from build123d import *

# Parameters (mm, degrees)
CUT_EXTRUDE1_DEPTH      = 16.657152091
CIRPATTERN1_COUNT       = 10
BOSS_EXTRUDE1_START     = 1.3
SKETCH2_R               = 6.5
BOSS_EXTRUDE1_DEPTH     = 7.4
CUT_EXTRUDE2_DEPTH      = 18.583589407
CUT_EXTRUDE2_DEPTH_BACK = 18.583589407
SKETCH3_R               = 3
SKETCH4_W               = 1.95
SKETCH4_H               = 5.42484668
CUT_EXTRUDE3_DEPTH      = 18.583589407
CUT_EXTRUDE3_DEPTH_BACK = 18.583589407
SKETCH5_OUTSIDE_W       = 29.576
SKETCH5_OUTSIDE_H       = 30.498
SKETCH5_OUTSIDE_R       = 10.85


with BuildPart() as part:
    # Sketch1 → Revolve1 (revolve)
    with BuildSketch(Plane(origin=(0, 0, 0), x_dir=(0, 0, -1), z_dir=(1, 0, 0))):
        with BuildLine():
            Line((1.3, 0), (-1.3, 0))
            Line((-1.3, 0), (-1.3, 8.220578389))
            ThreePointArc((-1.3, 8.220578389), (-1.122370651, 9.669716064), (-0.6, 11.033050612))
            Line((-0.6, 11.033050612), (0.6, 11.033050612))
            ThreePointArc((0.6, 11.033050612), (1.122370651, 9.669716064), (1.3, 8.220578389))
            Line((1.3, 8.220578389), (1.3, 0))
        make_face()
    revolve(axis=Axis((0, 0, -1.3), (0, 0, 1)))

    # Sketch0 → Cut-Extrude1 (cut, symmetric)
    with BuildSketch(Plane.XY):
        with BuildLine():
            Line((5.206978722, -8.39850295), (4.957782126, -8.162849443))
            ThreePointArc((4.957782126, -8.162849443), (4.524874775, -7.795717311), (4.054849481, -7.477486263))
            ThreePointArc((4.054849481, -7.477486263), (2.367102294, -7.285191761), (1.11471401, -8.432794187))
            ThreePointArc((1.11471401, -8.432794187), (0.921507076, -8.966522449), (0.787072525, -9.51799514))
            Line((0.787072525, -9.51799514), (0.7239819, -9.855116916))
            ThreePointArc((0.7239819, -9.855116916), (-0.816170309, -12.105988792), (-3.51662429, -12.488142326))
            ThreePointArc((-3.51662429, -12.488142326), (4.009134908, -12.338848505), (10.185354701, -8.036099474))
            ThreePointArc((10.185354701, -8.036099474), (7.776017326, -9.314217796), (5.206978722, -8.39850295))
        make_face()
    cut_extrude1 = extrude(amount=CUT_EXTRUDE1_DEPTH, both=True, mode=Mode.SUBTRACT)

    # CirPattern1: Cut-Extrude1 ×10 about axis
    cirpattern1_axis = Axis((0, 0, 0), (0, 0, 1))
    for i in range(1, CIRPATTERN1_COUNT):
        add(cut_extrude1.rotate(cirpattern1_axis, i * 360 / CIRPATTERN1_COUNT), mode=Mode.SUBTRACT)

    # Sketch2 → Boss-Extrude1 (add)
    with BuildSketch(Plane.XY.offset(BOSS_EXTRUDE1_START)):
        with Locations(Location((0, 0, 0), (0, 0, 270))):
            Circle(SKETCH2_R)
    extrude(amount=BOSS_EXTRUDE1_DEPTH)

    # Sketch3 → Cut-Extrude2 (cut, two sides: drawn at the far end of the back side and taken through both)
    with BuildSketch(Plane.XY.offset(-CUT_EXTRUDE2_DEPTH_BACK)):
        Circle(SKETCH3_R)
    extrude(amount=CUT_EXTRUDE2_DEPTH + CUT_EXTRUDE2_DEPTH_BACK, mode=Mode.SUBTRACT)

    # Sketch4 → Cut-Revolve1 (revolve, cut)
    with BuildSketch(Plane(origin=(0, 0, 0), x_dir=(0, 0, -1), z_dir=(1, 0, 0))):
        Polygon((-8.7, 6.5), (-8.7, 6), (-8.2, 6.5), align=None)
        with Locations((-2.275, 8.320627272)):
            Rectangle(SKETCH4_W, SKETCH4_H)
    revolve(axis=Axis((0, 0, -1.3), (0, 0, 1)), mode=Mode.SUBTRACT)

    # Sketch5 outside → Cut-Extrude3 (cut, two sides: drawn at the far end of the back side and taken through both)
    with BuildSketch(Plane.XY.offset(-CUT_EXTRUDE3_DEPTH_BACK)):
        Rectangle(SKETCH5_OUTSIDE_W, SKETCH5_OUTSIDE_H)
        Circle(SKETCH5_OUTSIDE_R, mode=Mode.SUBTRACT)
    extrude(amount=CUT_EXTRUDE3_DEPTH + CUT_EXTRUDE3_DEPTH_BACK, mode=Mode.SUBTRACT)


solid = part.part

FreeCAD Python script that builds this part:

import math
import FreeCAD as App
import Part
import Sketcher
Q = App.Units.Quantity

doc = App.newDocument("Part")
body = doc.addObject("PartDesign::Body", "Body")

sketch1 = body.newObject("Sketcher::SketchObject", "Sketch")
sketch1.AttachmentSupport = (doc.getObject("YZ_Plane"), [""])
sketch1.MapMode = "FlatFace"
sketch1.addGeometry(Part.LineSegment(App.Vector(0, 1.3, 0), App.Vector(0, -1.3, 0)), False)
sketch1.addGeometry(Part.LineSegment(App.Vector(0, -1.3, 0), App.Vector(8.220578, -1.3, 0)), False)
sketch1.addGeometry(Part.ArcOfCircle(Part.Circle(App.Vector(8.220578, 4.7, 0), App.Vector(0, 0, 1), 6), math.radians(-90), math.radians(-62.047113)), False)
sketch1.addGeometry(Part.LineSegment(App.Vector(11.033051, -0.6, 0), App.Vector(11.033051, 0.6, 0)), False)
sketch1.addGeometry(Part.ArcOfCircle(Part.Circle(App.Vector(8.220578, -4.7, 0), App.Vector(0, 0, 1), 6), math.radians(62.047113), math.radians(90)), False)
sketch1.addGeometry(Part.LineSegment(App.Vector(8.220578, 1.3, 0), App.Vector(0, 1.3, 0)), False)
sketch1.addConstraint(Sketcher.Constraint("Coincident", 0, 2, 1, 1))
sketch1.addConstraint(Sketcher.Constraint("Tangent", 1, 2, 2, 1))
sketch1.addConstraint(Sketcher.Constraint("Coincident", 2, 2, 3, 1))
sketch1.addConstraint(Sketcher.Constraint("Coincident", 3, 2, 4, 1))
sketch1.addConstraint(Sketcher.Constraint("Tangent", 4, 2, 5, 1))
sketch1.addConstraint(Sketcher.Constraint("Coincident", 5, 2, 0, 1))
sketch1.addConstraint(Sketcher.Constraint("Vertical", 0))
sketch1.addConstraint(Sketcher.Constraint("Horizontal", 1))
sketch1.addConstraint(Sketcher.Constraint("Vertical", 3))
sketch1.addConstraint(Sketcher.Constraint("Horizontal", 5))
sketch1.addConstraint(Sketcher.Constraint("Equal", 2, 4))
sketch1.addConstraint(Sketcher.Constraint("Symmetric", 0, 2, 5, 2, -1, 1))
sketch1.addConstraint(Sketcher.Constraint("Vertical", 2, 3, 4, 3))
sketch1.addConstraint(Sketcher.Constraint("Radius", 2, 6.0))
sketch1.addConstraint(Sketcher.Constraint("DistanceY", 0, 2, 0, 1, 2.6))
sketch1.addConstraint(Sketcher.Constraint("DistanceY", 3, 1, 3, 2, 1.2))
sketch1.addConstraint(Sketcher.Constraint("DistanceX", 1, 1, 1, 2, 8.220578))
revolution = body.newObject("PartDesign::Revolution", "Revolution")
revolution.Profile = sketch1
revolution.ReferenceAxis = (sketch1, ["V_Axis"])
revolution.Angle = 360

sketch2 = body.newObject("Sketcher::SketchObject", "Sketch001")
sketch2.AttachmentSupport = (doc.getObject("XY_Plane"), [""])
sketch2.MapMode = "FlatFace"
sketch2.addGeometry(Part.LineSegment(App.Vector(5.206979, -8.398503, 0), App.Vector(4.957782, -8.162849, 0)), False)
sketch2.addGeometry(Part.ArcOfCircle(Part.Circle(App.Vector(1.351878, -11.975986, 0), App.Vector(0, 0, 1), 5.2481), math.radians(46.6), math.radians(59)), False)
sketch2.addGeometry(Part.ArcOfCircle(Part.Circle(App.Vector(3, -9.233051, 0), App.Vector(0, 0, 1), 2.0481), math.radians(59), math.radians(157)), False)
sketch2.addGeometry(Part.ArcOfCircle(Part.Circle(App.Vector(5.945616, -10.48339, 0), App.Vector(0, 0, 1), 5.2481), math.radians(157), math.radians(169.4)), False)
sketch2.addGeometry(Part.LineSegment(App.Vector(0.787073, -9.517995, 0), App.Vector(0.723982, -9.855117, 0)), False)
sketch2.addGeometry(Part.ArcOfCircle(Part.Circle(App.Vector(-2.6, -9.233051, 0), App.Vector(0, 0, 1), 3.381689), math.radians(-105.727064), math.radians(-10.6)), False)
sketch2.addGeometry(Part.ArcOfCircle(Part.Circle(App.Vector(0, 0, 0), App.Vector(0, 0, 1), 12.973833), math.radians(-105.727064), math.radians(-38.272936)), False)
sketch2.addGeometry(Part.ArcOfCircle(Part.Circle(App.Vector(7.530495, -5.941453, 0), App.Vector(0, 0, 1), 3.381689), math.radians(-133.4), math.radians(-38.272936)), False)
sketch2.addConstraint(Sketcher.Constraint("Tangent", 0, 2, 1, 1))
sketch2.addConstraint(Sketcher.Constraint("Tangent", 1, 2, 2, 1))
sketch2.addConstraint(Sketcher.Constraint("Tangent", 2, 2, 3, 1))
sketch2.addConstraint(Sketcher.Constraint("Tangent", 3, 2, 4, 1))
sketch2.addConstraint(Sketcher.Constraint("Tangent", 4, 2, 5, 2))
sketch2.addConstraint(Sketcher.Constraint("Tangent", 5, 1, 6, 1))
sketch2.addConstraint(Sketcher.Constraint("Tangent", 6, 2, 7, 2))
sketch2.addConstraint(Sketcher.Constraint("Tangent", 7, 1, 0, 1))
sketch2.addConstraint(Sketcher.Constraint("Coincident", 6, 3, -1, 1))
sketch2.addConstraint(Sketcher.Constraint("Equal", 1, 3))
sketch2.addConstraint(Sketcher.Constraint("Equal", 5, 7))
sketch2.addConstraint(Sketcher.Constraint("Horizontal", 2, 3, 5, 3))
sketch2.addConstraint(Sketcher.Constraint("Equal", 0, 4))
sketch2.addConstraint(Sketcher.Constraint("DistanceX", -1, 1, 2, 3, 3.0))
sketch2.addConstraint(Sketcher.Constraint("Angle", 0, Q("136.6 deg")))
sketch2.addConstraint(Sketcher.Constraint("Angle", 4, Q("-100.6 deg")))
sketch2.addConstraint(Sketcher.Constraint("DistanceX", 5, 3, -1, 1, 2.6))
sketch2.addConstraint(Sketcher.Constraint("Radius", 1, 5.2481))
sketch2.addConstraint(Sketcher.Constraint("Radius", 2, 2.0481))
sketch2.addConstraint(Sketcher.Constraint("Radius", 5, 3.381689))
sketch2.addConstraint(Sketcher.Constraint("Radius", 6, 12.973833))
pocket1 = body.newObject("PartDesign::Pocket", "Pocket")
pocket1.Profile = sketch2
pocket1.Length = 33.314304
pocket1.Midplane = True
doc.recompute()

polarpattern = body.newObject("PartDesign::PolarPattern", "PolarPattern")
polarpattern.Originals = [pocket1]
polarpattern.Axis = (doc.getObject("Z_Axis"), [""])
polarpattern.Angle = 360
polarpattern.Occurrences = 10
body.Tip = polarpattern

sketch3 = body.newObject("Sketcher::SketchObject", "Sketch002")
sketch3.AttachmentSupport = (doc.getObject("XY_Plane"), [""])
sketch3.MapMode = "FlatFace"
sketch3.AttachmentOffset = App.Placement(App.Vector(0, 0, 1.3), App.Rotation())
sketch3.addGeometry(Part.Circle(App.Vector(0, 0, 0), App.Vector(0, 0, 1), 6.5), False)
sketch3.addConstraint(Sketcher.Constraint("Coincident", 0, 3, -1, 1))
sketch3.addConstraint(Sketcher.Constraint("Diameter", 0, 13.0))
pad1 = body.newObject("PartDesign::Pad", "Pad")
pad1.Profile = sketch3
pad1.Length = 7.4

sketch4 = body.newObject("Sketcher::SketchObject", "Sketch003")
sketch4.AttachmentSupport = (doc.getObject("XY_Plane"), [""])
sketch4.MapMode = "FlatFace"
sketch4.addGeometry(Part.Circle(App.Vector(0, 0, 0), App.Vector(0, 0, 1), 3), False)
sketch4.addConstraint(Sketcher.Constraint("Coincident", 0, 3, -1, 1))
sketch4.addConstraint(Sketcher.Constraint("Diameter", 0, 6.0))
pocket2 = body.newObject("PartDesign::Pocket", "Pocket001")
pocket2.Profile = sketch4
pocket2.Type = "ThroughAll"
pocket2.Midplane = True

sketch5 = body.newObject("Sketcher::SketchObject", "Sketch004")
sketch5.AttachmentSupport = (doc.getObject("YZ_Plane"), [""])
sketch5.MapMode = "FlatFace"
sketch5.addGeometry(Part.LineSegment(App.Vector(6.5, 8.7, 0), App.Vector(6, 8.7, 0)), False)
sketch5.addGeometry(Part.LineSegment(App.Vector(6, 8.7, 0), App.Vector(6.5, 8.2, 0)), False)
sketch5.addGeometry(Part.LineSegment(App.Vector(6.5, 8.2, 0), App.Vector(6.5, 8.7, 0)), False)
sketch5.addGeometry(Part.LineSegment(App.Vector(11.033051, 3.25, 0), App.Vector(5.608204, 3.25, 0)), False)
sketch5.addGeometry(Part.LineSegment(App.Vector(5.608204, 3.25, 0), App.Vector(5.608204, 1.3, 0)), False)
sketch5.addGeometry(Part.LineSegment(App.Vector(5.608204, 1.3, 0), App.Vector(11.033051, 1.3, 0)), False)
sketch5.addGeometry(Part.LineSegment(App.Vector(11.033051, 1.3, 0), App.Vector(11.033051, 3.25, 0)), False)
sketch5.addConstraint(Sketcher.Constraint("Coincident", 0, 2, 1, 1))
sketch5.addConstraint(Sketcher.Constraint("Coincident", 1, 2, 2, 1))
sketch5.addConstraint(Sketcher.Constraint("Coincident", 2, 2, 0, 1))
sketch5.addConstraint(Sketcher.Constraint("Coincident", 3, 2, 4, 1))
sketch5.addConstraint(Sketcher.Constraint("Coincident", 4, 2, 5, 1))
sketch5.addConstraint(Sketcher.Constraint("Coincident", 5, 2, 6, 1))
sketch5.addConstraint(Sketcher.Constraint("Coincident", 6, 2, 3, 1))
sketch5.addConstraint(Sketcher.Constraint("Horizontal", 0))
sketch5.addConstraint(Sketcher.Constraint("Vertical", 2))
sketch5.addConstraint(Sketcher.Constraint("Horizontal", 3))
sketch5.addConstraint(Sketcher.Constraint("Vertical", 4))
sketch5.addConstraint(Sketcher.Constraint("Horizontal", 5))
sketch5.addConstraint(Sketcher.Constraint("Vertical", 6))
sketch5.addConstraint(Sketcher.Constraint("Equal", 0, 2))
sketch5.addConstraint(Sketcher.Constraint("DistanceX", 0, 2, 0, 1, 0.5))
sketch5.addConstraint(Sketcher.Constraint("DistanceX", -1, 1, 0, 2, 6.0))
sketch5.addConstraint(Sketcher.Constraint("DistanceY", 4, 2, 4, 1, 1.95))
sketch5.addConstraint(Sketcher.Constraint("DistanceY", -1, 1, 0, 2, 8.7))
sketch5.addConstraint(Sketcher.Constraint("DistanceY", -1, 1, 4, 2, 1.3))
sketch5.addConstraint(Sketcher.Constraint("DistanceX", 3, 2, 3, 1, 5.424847))
sketch5.addConstraint(Sketcher.Constraint("DistanceX", -1, 1, 5, 2, 11.033051))
groove = body.newObject("PartDesign::Groove", "Groove")
groove.Profile = sketch5
groove.ReferenceAxis = (sketch5, ["V_Axis"])
groove.Angle = 360

sketch6 = body.newObject("Sketcher::SketchObject", "Sketch005")
sketch6.AttachmentSupport = (doc.getObject("XY_Plane"), [""])
sketch6.MapMode = "FlatFace"
sketch6.addGeometry(Part.LineSegment(App.Vector(-14.788, 15.249, 0), App.Vector(-14.788, -15.249, 0)), False)
sketch6.addGeometry(Part.LineSegment(App.Vector(-14.788, -15.249, 0), App.Vector(14.788, -15.249, 0)), False)
sketch6.addGeometry(Part.LineSegment(App.Vector(14.788, -15.249, 0), App.Vector(14.788, 15.249, 0)), False)
sketch6.addGeometry(Part.LineSegment(App.Vector(14.788, 15.249, 0), App.Vector(-14.788, 15.249, 0)), False)
sketch6.addGeometry(Part.Circle(App.Vector(0, 0, 0), App.Vector(0, 0, 1), 10.85), False)
sketch6.addConstraint(Sketcher.Constraint("Coincident", 0, 2, 1, 1))
sketch6.addConstraint(Sketcher.Constraint("Coincident", 1, 2, 2, 1))
sketch6.addConstraint(Sketcher.Constraint("Coincident", 2, 2, 3, 1))
sketch6.addConstraint(Sketcher.Constraint("Coincident", 3, 2, 0, 1))
sketch6.addConstraint(Sketcher.Constraint("Vertical", 0))
sketch6.addConstraint(Sketcher.Constraint("Horizontal", 1))
sketch6.addConstraint(Sketcher.Constraint("Vertical", 2))
sketch6.addConstraint(Sketcher.Constraint("Horizontal", 3))
sketch6.addConstraint(Sketcher.Constraint("Coincident", 4, 3, -1, 1))
sketch6.addConstraint(Sketcher.Constraint("Symmetric", 0, 2, 2, 2, -1, 1))
sketch6.addConstraint(Sketcher.Constraint("Diameter", 4, 21.7))
sketch6.addConstraint(Sketcher.Constraint("DistanceX", 1, 1, 1, 2, 29.576))
sketch6.addConstraint(Sketcher.Constraint("DistanceY", 0, 2, 0, 1, 30.498))
pocket3 = body.newObject("PartDesign::Pocket", "Pocket002")
pocket3.Profile = sketch6
pocket3.Type = "ThroughAll"
pocket3.Midplane = True

doc.recompute()
